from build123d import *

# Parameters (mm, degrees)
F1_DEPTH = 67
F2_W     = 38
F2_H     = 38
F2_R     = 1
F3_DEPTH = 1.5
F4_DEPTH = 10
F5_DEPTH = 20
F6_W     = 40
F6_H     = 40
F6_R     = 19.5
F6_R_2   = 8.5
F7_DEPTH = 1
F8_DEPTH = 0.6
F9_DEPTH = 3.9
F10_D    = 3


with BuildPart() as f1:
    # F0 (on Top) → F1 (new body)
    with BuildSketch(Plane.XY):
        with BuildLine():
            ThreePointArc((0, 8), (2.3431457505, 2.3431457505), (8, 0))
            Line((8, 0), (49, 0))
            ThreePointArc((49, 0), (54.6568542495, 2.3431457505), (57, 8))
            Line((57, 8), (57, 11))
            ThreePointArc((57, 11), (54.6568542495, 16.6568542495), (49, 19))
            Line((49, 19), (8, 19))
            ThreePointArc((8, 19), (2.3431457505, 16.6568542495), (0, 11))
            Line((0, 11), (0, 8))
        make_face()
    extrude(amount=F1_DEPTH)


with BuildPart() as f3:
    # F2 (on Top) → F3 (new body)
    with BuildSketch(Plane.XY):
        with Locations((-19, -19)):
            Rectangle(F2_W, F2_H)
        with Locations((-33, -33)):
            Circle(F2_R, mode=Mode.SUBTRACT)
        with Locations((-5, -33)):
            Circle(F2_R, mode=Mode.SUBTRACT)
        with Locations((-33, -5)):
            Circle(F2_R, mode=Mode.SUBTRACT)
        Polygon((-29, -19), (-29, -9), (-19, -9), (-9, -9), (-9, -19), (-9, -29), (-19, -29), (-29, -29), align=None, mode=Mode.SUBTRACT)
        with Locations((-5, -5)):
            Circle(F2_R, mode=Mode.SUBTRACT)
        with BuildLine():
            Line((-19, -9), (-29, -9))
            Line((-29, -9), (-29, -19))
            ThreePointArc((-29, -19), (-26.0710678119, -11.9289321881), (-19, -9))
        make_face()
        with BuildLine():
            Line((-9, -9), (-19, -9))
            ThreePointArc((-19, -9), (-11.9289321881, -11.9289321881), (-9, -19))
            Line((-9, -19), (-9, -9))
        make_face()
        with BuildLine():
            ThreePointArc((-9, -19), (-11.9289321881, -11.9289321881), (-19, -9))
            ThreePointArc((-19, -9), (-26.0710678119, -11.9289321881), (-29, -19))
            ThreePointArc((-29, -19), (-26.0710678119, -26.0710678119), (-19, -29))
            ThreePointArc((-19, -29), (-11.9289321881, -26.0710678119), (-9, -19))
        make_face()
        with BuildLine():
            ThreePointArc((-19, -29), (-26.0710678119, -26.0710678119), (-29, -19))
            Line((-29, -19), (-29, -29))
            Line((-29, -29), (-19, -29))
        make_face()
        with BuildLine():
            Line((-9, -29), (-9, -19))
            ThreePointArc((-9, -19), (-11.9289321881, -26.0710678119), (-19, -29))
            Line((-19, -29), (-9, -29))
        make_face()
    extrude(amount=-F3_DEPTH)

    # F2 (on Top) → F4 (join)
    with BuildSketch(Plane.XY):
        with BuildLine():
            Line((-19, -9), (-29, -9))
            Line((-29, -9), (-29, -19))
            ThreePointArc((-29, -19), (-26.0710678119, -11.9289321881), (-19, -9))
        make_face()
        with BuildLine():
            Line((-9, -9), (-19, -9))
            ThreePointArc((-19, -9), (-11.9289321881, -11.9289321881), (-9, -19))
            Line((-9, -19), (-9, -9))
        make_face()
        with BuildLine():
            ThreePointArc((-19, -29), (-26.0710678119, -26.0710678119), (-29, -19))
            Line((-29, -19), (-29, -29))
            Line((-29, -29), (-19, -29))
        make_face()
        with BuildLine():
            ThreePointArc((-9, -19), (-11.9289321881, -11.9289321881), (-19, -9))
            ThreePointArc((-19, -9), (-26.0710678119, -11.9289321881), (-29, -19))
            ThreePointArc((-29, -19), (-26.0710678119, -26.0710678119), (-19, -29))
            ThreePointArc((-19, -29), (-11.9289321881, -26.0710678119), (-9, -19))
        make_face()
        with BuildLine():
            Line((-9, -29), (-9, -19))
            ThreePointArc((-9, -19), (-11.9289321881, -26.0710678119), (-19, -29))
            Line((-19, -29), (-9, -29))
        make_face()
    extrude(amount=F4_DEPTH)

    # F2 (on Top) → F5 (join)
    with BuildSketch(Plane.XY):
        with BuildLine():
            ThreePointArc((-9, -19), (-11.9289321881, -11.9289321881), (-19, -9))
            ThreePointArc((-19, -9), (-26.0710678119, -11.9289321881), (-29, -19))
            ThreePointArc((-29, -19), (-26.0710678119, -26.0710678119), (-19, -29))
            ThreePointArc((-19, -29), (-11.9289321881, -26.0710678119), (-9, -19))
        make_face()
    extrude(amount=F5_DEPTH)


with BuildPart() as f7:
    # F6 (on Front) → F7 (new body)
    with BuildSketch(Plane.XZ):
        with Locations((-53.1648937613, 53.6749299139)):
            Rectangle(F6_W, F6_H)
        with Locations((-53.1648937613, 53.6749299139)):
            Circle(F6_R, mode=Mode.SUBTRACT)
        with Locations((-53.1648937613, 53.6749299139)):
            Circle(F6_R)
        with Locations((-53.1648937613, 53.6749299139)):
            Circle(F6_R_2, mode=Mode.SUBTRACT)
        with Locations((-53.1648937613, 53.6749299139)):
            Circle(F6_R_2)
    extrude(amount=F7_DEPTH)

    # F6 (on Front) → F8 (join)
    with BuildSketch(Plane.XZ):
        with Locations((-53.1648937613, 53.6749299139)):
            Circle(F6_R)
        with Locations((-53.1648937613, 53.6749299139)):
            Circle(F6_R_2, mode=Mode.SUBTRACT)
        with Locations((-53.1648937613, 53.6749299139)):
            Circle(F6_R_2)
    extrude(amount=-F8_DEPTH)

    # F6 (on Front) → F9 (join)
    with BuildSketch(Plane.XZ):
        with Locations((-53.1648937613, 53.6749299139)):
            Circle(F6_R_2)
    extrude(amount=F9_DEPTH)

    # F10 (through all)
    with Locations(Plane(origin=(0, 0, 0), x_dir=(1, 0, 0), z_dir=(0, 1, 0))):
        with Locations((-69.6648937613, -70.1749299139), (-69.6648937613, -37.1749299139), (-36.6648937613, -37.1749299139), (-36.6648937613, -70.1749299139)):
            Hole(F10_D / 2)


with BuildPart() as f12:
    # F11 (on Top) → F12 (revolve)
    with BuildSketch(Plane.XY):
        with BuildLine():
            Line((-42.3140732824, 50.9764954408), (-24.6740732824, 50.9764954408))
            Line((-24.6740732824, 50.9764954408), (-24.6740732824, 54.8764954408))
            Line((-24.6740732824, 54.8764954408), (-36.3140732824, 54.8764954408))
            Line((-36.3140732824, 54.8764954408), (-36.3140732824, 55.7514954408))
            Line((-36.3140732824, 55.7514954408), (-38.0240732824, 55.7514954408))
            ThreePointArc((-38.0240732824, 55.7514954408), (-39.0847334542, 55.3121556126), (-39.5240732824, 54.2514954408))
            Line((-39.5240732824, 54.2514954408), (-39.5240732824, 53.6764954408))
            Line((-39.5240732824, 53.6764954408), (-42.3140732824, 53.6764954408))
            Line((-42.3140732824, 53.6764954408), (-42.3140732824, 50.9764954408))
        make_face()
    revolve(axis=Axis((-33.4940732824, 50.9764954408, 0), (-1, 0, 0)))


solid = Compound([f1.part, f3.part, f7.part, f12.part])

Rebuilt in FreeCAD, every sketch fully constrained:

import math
import FreeCAD as App
import Part
import Sketcher

doc = App.newDocument("Part")
body = doc.addObject("PartDesign::Body", "Body")

sketch1 = doc.addObject("Sketcher::SketchObject", "Sketch")
body.addObject(sketch1)
sketch1.AttachmentSupport = (doc.XY_Plane, [""])
sketch1.MapMode = "FlatFace"
sketch1.addGeometry(Part.ArcOfCircle(Part.Circle(App.Vector(8, 8, 0), App.Vector(0, 0, 1), 8), math.radians(180), math.radians(270)), False)
sketch1.addGeometry(Part.LineSegment(App.Vector(8, 0, 0), App.Vector(49, 0, 0)), False)
sketch1.addGeometry(Part.ArcOfCircle(Part.Circle(App.Vector(49, 8, 0), App.Vector(0, 0, 1), 8), math.radians(-90), math.radians(0)), False)
sketch1.addGeometry(Part.LineSegment(App.Vector(57, 8, 0), App.Vector(57, 11, 0)), False)
sketch1.addGeometry(Part.ArcOfCircle(Part.Circle(App.Vector(49, 11, 0), App.Vector(0, 0, 1), 8), math.radians(0), math.radians(90)), False)
sketch1.addGeometry(Part.LineSegment(App.Vector(49, 19, 0), App.Vector(8, 19, 0)), False)
sketch1.addGeometry(Part.ArcOfCircle(Part.Circle(App.Vector(8, 11, 0), App.Vector(0, 0, 1), 8), math.radians(90), math.radians(180)), False)
sketch1.addGeometry(Part.LineSegment(App.Vector(0, 11, 0), App.Vector(0, 8, 0)), False)
sketch1.addConstraint(Sketcher.Constraint("Tangent", 0, 2, 1, 1))
sketch1.addConstraint(Sketcher.Constraint("Tangent", 1, 2, 2, 1))
sketch1.addConstraint(Sketcher.Constraint("Tangent", 2, 2, 3, 1))
sketch1.addConstraint(Sketcher.Constraint("Tangent", 3, 2, 4, 1))
sketch1.addConstraint(Sketcher.Constraint("Tangent", 4, 2, 5, 1))
sketch1.addConstraint(Sketcher.Constraint("Tangent", 5, 2, 6, 1))
sketch1.addConstraint(Sketcher.Constraint("Tangent", 6, 2, 7, 1))
sketch1.addConstraint(Sketcher.Constraint("Tangent", 7, 2, 0, 1))
sketch1.addConstraint(Sketcher.Constraint("Horizontal", 1))
sketch1.addConstraint(Sketcher.Constraint("Vertical", 3))
sketch1.addConstraint(Sketcher.Constraint("Horizontal", 5))
sketch1.addConstraint(Sketcher.Constraint("Vertical", 7))
sketch1.addConstraint(Sketcher.Constraint("Equal", 0, 2))
sketch1.addConstraint(Sketcher.Constraint("Equal", 2, 4))
sketch1.addConstraint(Sketcher.Constraint("Equal", 4, 6))
sketch1.addConstraint(Sketcher.Constraint("PointOnObject", 0, 2, -1))
sketch1.addConstraint(Sketcher.Constraint("PointOnObject", 6, 2, -2))
sketch1.addConstraint(Sketcher.Constraint("Radius", 0, 8.0))
sketch1.addConstraint(Sketcher.Constraint("DistanceX", 1, 1, 1, 2, 41.0))
sketch1.addConstraint(Sketcher.Constraint("DistanceY", 3, 1, 3, 2, 3.0))
pad1 = doc.addObject("PartDesign::Pad", "Pad")
body.addObject(pad1)
pad1.Profile = sketch1
pad1.Length = 67
body2 = doc.addObject("PartDesign::Body", "Body001")

sketch2 = doc.addObject("Sketcher::SketchObject", "Sketch001")
body2.addObject(sketch2)
sketch2.AttachmentSupport = (doc.getObject("XY_Plane001"), [""])
sketch2.MapMode = "FlatFace"
sketch2.addGeometry(Part.LineSegment(App.Vector(-38, 0, 0), App.Vector(-38, -38, 0)), False)
sketch2.addGeometry(Part.LineSegment(App.Vector(-38, -38, 0), App.Vector(0, -38, 0)), False)
sketch2.addGeometry(Part.LineSegment(App.Vector(0, -38, 0), App.Vector(0, 0, 0)), False)
sketch2.addGeometry(Part.LineSegment(App.Vector(0, 0, 0), App.Vector(-38, 0, 0)), False)
sketch2.addGeometry(Part.Circle(App.Vector(-33, -33, 0), App.Vector(0, 0, 1), 1), False)
sketch2.addGeometry(Part.Circle(App.Vector(-5, -33, 0), App.Vector(0, 0, 1), 1), False)
sketch2.addGeometry(Part.Circle(App.Vector(-33, -5, 0), App.Vector(0, 0, 1), 1), False)
sketch2.addGeometry(Part.Circle(App.Vector(-5, -5, 0), App.Vector(0, 0, 1), 1), False)
sketch2.addConstraint(Sketcher.Constraint("Coincident", 0, 2, 1, 1))
sketch2.addConstraint(Sketcher.Constraint("Coincident", 1, 2, 2, 1))
sketch2.addConstraint(Sketcher.Constraint("Coincident", 2, 2, 3, 1))
sketch2.addConstraint(Sketcher.Constraint("Coincident", 3, 2, 0, 1))
sketch2.addConstraint(Sketcher.Constraint("Vertical", 0))
sketch2.addConstraint(Sketcher.Constraint("Horizontal", 1))
sketch2.addConstraint(Sketcher.Constraint("Vertical", 2))
sketch2.addConstraint(Sketcher.Constraint("Horizontal", 3))
sketch2.addConstraint(Sketcher.Constraint("Coincident", 2, 2, -1, 1))
sketch2.addConstraint(Sketcher.Constraint("Equal", 4, 5))
sketch2.addConstraint(Sketcher.Constraint("Equal", 5, 6))
sketch2.addConstraint(Sketcher.Constraint("Equal", 6, 7))
sketch2.addConstraint(Sketcher.Constraint("Horizontal", 4, 3, 5, 3))
sketch2.addConstraint(Sketcher.Constraint("Horizontal", 6, 3, 7, 3))
sketch2.addConstraint(Sketcher.Constraint("Vertical", 4, 3, 6, 3))
sketch2.addConstraint(Sketcher.Constraint("Vertical", 5, 3, 7, 3))
sketch2.addConstraint(Sketcher.Constraint("Equal", 3, 0))
sketch2.addConstraint(Sketcher.Constraint("Diameter", 4, 2.0))
sketch2.addConstraint(Sketcher.Constraint("DistanceX", 1, 1, 1, 2, 38.0))
sketch2.addConstraint(Sketcher.Constraint("DistanceX", 4, 3, -1, 1, 33.0))
sketch2.addConstraint(Sketcher.Constraint("DistanceY", 4, 3, -1, 1, 33.0))
sketch2.addConstraint(Sketcher.Constraint("DistanceX", 5, 3, -1, 1, 5.0))
sketch2.addConstraint(Sketcher.Constraint("DistanceY", 6, 3, -1, 1, 5.0))
pad2 = doc.addObject("PartDesign::Pad", "Pad001")
body2.addObject(pad2)
pad2.Profile = sketch2
pad2.Length = 1.5
pad2.Reversed = True

sketch3 = doc.addObject("Sketcher::SketchObject", "Sketch002")
body2.addObject(sketch3)
sketch3.AttachmentSupport = (doc.getObject("XY_Plane001"), [""])
sketch3.MapMode = "FlatFace"
sketch3.addGeometry(Part.LineSegment(App.Vector(-29, -9, 0), App.Vector(-29, -29, 0)), False)
sketch3.addGeometry(Part.LineSegment(App.Vector(-29, -29, 0), App.Vector(-9, -29, 0)), False)
sketch3.addGeometry(Part.LineSegment(App.Vector(-9, -29, 0), App.Vector(-9, -9, 0)), False)
sketch3.addGeometry(Part.LineSegment(App.Vector(-9, -9, 0), App.Vector(-29, -9, 0)), False)
sketch3.addConstraint(Sketcher.Constraint("Coincident", 0, 2, 1, 1))
sketch3.addConstraint(Sketcher.Constraint("Coincident", 1, 2, 2, 1))
sketch3.addConstraint(Sketcher.Constraint("Coincident", 2, 2, 3, 1))
sketch3.addConstraint(Sketcher.Constraint("Coincident", 3, 2, 0, 1))
sketch3.addConstraint(Sketcher.Constraint("Vertical", 0))
sketch3.addConstraint(Sketcher.Constraint("Horizontal", 1))
sketch3.addConstraint(Sketcher.Constraint("Vertical", 2))
sketch3.addConstraint(Sketcher.Constraint("Horizontal", 3))
sketch3.addConstraint(Sketcher.Constraint("Equal", 3, 0))
sketch3.addConstraint(Sketcher.Constraint("DistanceX", 1, 1, 1, 2, 20.0))
sketch3.addConstraint(Sketcher.Constraint("DistanceX", 0, 2, -1, 1, 29.0))
sketch3.addConstraint(Sketcher.Constraint("DistanceY", 0, 2, -1, 1, 29.0))
pad3 = doc.addObject("PartDesign::Pad", "Pad002")
body2.addObject(pad3)
pad3.Profile = sketch3
pad3.Length = 10

sketch4 = doc.addObject("Sketcher::SketchObject", "Sketch003")
body2.addObject(sketch4)
sketch4.AttachmentSupport = (doc.getObject("XY_Plane001"), [""])
sketch4.MapMode = "FlatFace"
sketch4.addGeometry(Part.ArcOfCircle(Part.Circle(App.Vector(-19, -19, 0), App.Vector(0, 0, 1), 10), math.radians(0), math.radians(90)), False)
sketch4.addGeometry(Part.ArcOfCircle(Part.Circle(App.Vector(-19, -19, 0), App.Vector(0, 0, 1), 10), math.radians(90), math.radians(180)), False)
sketch4.addGeometry(Part.ArcOfCircle(Part.Circle(App.Vector(-19, -19, 0), App.Vector(0, 0, 1), 10), math.radians(180), math.radians(270)), False)
sketch4.addGeometry(Part.ArcOfCircle(Part.Circle(App.Vector(-19, -19, 0), App.Vector(0, 0, 1), 10), math.radians(-90), math.radians(0)), False)
sketch4.addConstraint(Sketcher.Constraint("Tangent", 0, 2, 1, 1))
sketch4.addConstraint(Sketcher.Constraint("Tangent", 1, 2, 2, 1))
sketch4.addConstraint(Sketcher.Constraint("Tangent", 2, 2, 3, 1))
sketch4.addConstraint(Sketcher.Constraint("Tangent", 3, 2, 0, 1))
sketch4.addConstraint(Sketcher.Constraint("Equal", 0, 1))
sketch4.addConstraint(Sketcher.Constraint("Horizontal", 3, 3, 1, 2))
sketch4.addConstraint(Sketcher.Constraint("Horizontal", 1, 2, 3, 2))
sketch4.addConstraint(Sketcher.Constraint("Vertical", 3, 3, 0, 2))
sketch4.addConstraint(Sketcher.Constraint("Vertical", 0, 2, 2, 2))
sketch4.addConstraint(Sketcher.Constraint("Radius", 0, 10.0))
sketch4.addConstraint(Sketcher.Constraint("DistanceX", 0, 3, -1, 1, 19.0))
sketch4.addConstraint(Sketcher.Constraint("DistanceY", 0, 3, -1, 1, 19.0))
pad4 = doc.addObject("PartDesign::Pad", "Pad003")
body2.addObject(pad4)
pad4.Profile = sketch4
pad4.Length = 20
body3 = doc.addObject("PartDesign::Body", "Body002")

sketch5 = doc.addObject("Sketcher::SketchObject", "Sketch004")
body3.addObject(sketch5)
sketch5.AttachmentSupport = (doc.getObject("XZ_Plane002"), [""])
sketch5.MapMode = "FlatFace"
sketch5.addGeometry(Part.LineSegment(App.Vector(-73.164894, 73.67493, 0), App.Vector(-73.164894, 33.67493, 0)), False)
sketch5.addGeometry(Part.LineSegment(App.Vector(-73.164894, 33.67493, 0), App.Vector(-33.164894, 33.67493, 0)), False)
sketch5.addGeometry(Part.LineSegment(App.Vector(-33.164894, 33.67493, 0), App.Vector(-33.164894, 73.67493, 0)), False)
sketch5.addGeometry(Part.LineSegment(App.Vector(-33.164894, 73.67493, 0), App.Vector(-73.164894, 73.67493, 0)), False)
sketch5.addConstraint(Sketcher.Constraint("Coincident", 0, 2, 1, 1))
sketch5.addConstraint(Sketcher.Constraint("Coincident", 1, 2, 2, 1))
sketch5.addConstraint(Sketcher.Constraint("Coincident", 2, 2, 3, 1))
sketch5.addConstraint(Sketcher.Constraint("Coincident", 3, 2, 0, 1))
sketch5.addConstraint(Sketcher.Constraint("Vertical", 0))
sketch5.addConstraint(Sketcher.Constraint("Horizontal", 1))
sketch5.addConstraint(Sketcher.Constraint("Vertical", 2))
sketch5.addConstraint(Sketcher.Constraint("Horizontal", 3))
sketch5.addConstraint(Sketcher.Constraint("Equal", 3, 0))
sketch5.addConstraint(Sketcher.Constraint("DistanceX", 1, 1, 1, 2, 40.0))
sketch5.addConstraint(Sketcher.Constraint("DistanceY", -1, 1, 0, 2, 33.67493))
sketch5.addConstraint(Sketcher.Constraint("DistanceX", 0, 2, -1, 1, 73.164894))
pad5 = doc.addObject("PartDesign::Pad", "Pad004")
body3.addObject(pad5)
pad5.Profile = sketch5
pad5.Length = 1

sketch6 = doc.addObject("Sketcher::SketchObject", "Sketch005")
body3.addObject(sketch6)
sketch6.AttachmentSupport = (doc.getObject("XZ_Plane002"), [""])
sketch6.MapMode = "FlatFace"
sketch6.addGeometry(Part.Circle(App.Vector(-53.164894, 53.67493, 0), App.Vector(0, 0, 1), 19.5), False)
sketch6.addConstraint(Sketcher.Constraint("Diameter", 0, 39.0))
sketch6.addConstraint(Sketcher.Constraint("DistanceY", -1, 1, 0, 3, 53.67493))
sketch6.addConstraint(Sketcher.Constraint("DistanceX", 0, 3, -1, 1, 53.164894))
pad6 = doc.addObject("PartDesign::Pad", "Pad005")
body3.addObject(pad6)
pad6.Profile = sketch6
pad6.Length = 0.6
pad6.Reversed = True

sketch7 = doc.addObject("Sketcher::SketchObject", "Sketch006")
body3.addObject(sketch7)
sketch7.AttachmentSupport = (doc.getObject("XZ_Plane002"), [""])
sketch7.MapMode = "FlatFace"
sketch7.addGeometry(Part.Circle(App.Vector(-53.164894, 53.67493, 0), App.Vector(0, 0, 1), 8.5), False)
sketch7.addConstraint(Sketcher.Constraint("Diameter", 0, 17.0))
sketch7.addConstraint(Sketcher.Constraint("DistanceY", -1, 1, 0, 3, 53.67493))
sketch7.addConstraint(Sketcher.Constraint("DistanceX", 0, 3, -1, 1, 53.164894))
pad7 = doc.addObject("PartDesign::Pad", "Pad006")
body3.addObject(pad7)
pad7.Profile = sketch7
pad7.Length = 3.9

sketch8 = doc.addObject("Sketcher::SketchObject", "Sketch007")
body3.addObject(sketch8)
sketch8.AttachmentSupport = (doc.getObject("XZ_Plane002"), [""])
sketch8.MapMode = "FlatFace"
sketch8.addGeometry(Part.Circle(App.Vector(-69.664894, 70.17493, 0), App.Vector(0, 0, 1), 1.5), False)
sketch8.addGeometry(Part.Circle(App.Vector(-69.664894, 37.17493, 0), App.Vector(0, 0, 1), 1.5), False)
sketch8.addGeometry(Part.Circle(App.Vector(-36.664894, 37.17493, 0), App.Vector(0, 0, 1), 1.5), False)
sketch8.addGeometry(Part.Circle(App.Vector(-36.664894, 70.17493, 0), App.Vector(0, 0, 1), 1.5), False)
sketch8.addConstraint(Sketcher.Constraint("Equal", 0, 1))
sketch8.addConstraint(Sketcher.Constraint("Equal", 1, 2))
sketch8.addConstraint(Sketcher.Constraint("Equal", 2, 3))
sketch8.addConstraint(Sketcher.Constraint("Horizontal", 1, 3, 2, 3))
sketch8.addConstraint(Sketcher.Constraint("Horizontal", 0, 3, 3, 3))
sketch8.addConstraint(Sketcher.Constraint("Vertical", 0, 3, 1, 3))
sketch8.addConstraint(Sketcher.Constraint("Vertical", 2, 3, 3, 3))
sketch8.addConstraint(Sketcher.Constraint("Diameter", 0, 3.0))
sketch8.addConstraint(Sketcher.Constraint("DistanceY", 1, 3, 0, 3, 33.0))
sketch8.addConstraint(Sketcher.Constraint("DistanceX", 1, 3, 2, 3, 33.0))
sketch8.addConstraint(Sketcher.Constraint("DistanceY", -1, 1, 0, 3, 70.17493))
sketch8.addConstraint(Sketcher.Constraint("DistanceX", 0, 3, -1, 1, 69.664894))
doc.recompute()
hole = doc.addObject("PartDesign::Hole", "Hole")
body3.addObject(hole)
hole.Profile = sketch8
hole.ThreadType = "None"
hole.Diameter = 3
hole.DepthType = "ThroughAll"
hole.Reversed = True
body4 = doc.addObject("PartDesign::Body", "Body003")

sketch9 = doc.addObject("Sketcher::SketchObject", "Sketch008")
body4.addObject(sketch9)
sketch9.AttachmentSupport = (doc.getObject("XY_Plane003"), [""])
sketch9.MapMode = "FlatFace"
sketch9.addGeometry(Part.LineSegment(App.Vector(-42.314073, 50.976495, 0), App.Vector(-24.674073, 50.976495, 0)), False)
sketch9.addGeometry(Part.LineSegment(App.Vector(-24.674073, 50.976495, 0), App.Vector(-24.674073, 54.876495, 0)), False)
sketch9.addGeometry(Part.LineSegment(App.Vector(-24.674073, 54.876495, 0), App.Vector(-36.314073, 54.876495, 0)), False)
sketch9.addGeometry(Part.LineSegment(App.Vector(-36.314073, 54.876495, 0), App.Vector(-36.314073, 55.751495, 0)), False)
sketch9.addGeometry(Part.LineSegment(App.Vector(-36.314073, 55.751495, 0), App.Vector(-38.024073, 55.751495, 0)), False)
sketch9.addGeometry(Part.ArcOfCircle(Part.Circle(App.Vector(-38.024073, 54.251495, 0), App.Vector(0, 0, 1), 1.5), math.radians(90), math.radians(180)), False)
sketch9.addGeometry(Part.LineSegment(App.Vector(-39.524073, 54.251495, 0), App.Vector(-39.524073, 53.676495, 0)), False)
sketch9.addGeometry(Part.LineSegment(App.Vector(-39.524073, 53.676495, 0), App.Vector(-42.314073, 53.676495, 0)), False)
sketch9.addGeometry(Part.LineSegment(App.Vector(-42.314073, 53.676495, 0), App.Vector(-42.314073, 50.976495, 0)), False)
sketch9.addGeometry(Part.LineSegment(App.Vector(-24.674073, 50.976495, 0), App.Vector(-42.314073, 50.976495, 0)), True)
sketch9.addConstraint(Sketcher.Constraint("Coincident", 0, 2, 1, 1))
sketch9.addConstraint(Sketcher.Constraint("Coincident", 1, 2, 2, 1))
sketch9.addConstraint(Sketcher.Constraint("Coincident", 2, 2, 3, 1))
sketch9.addConstraint(Sketcher.Constraint("Coincident", 3, 2, 4, 1))
sketch9.addConstraint(Sketcher.Constraint("Tangent", 4, 2, 5, 1))
sketch9.addConstraint(Sketcher.Constraint("Tangent", 5, 2, 6, 1))
sketch9.addConstraint(Sketcher.Constraint("Coincident", 6, 2, 7, 1))
sketch9.addConstraint(Sketcher.Constraint("Coincident", 7, 2, 8, 1))
sketch9.addConstraint(Sketcher.Constraint("Coincident", 8, 2, 0, 1))
sketch9.addConstraint(Sketcher.Constraint("Horizontal", 0))
sketch9.addConstraint(Sketcher.Constraint("Vertical", 1))
sketch9.addConstraint(Sketcher.Constraint("Horizontal", 2))
sketch9.addConstraint(Sketcher.Constraint("Vertical", 3))
sketch9.addConstraint(Sketcher.Constraint("Horizontal", 4))
sketch9.addConstraint(Sketcher.Constraint("Vertical", 6))
sketch9.addConstraint(Sketcher.Constraint("Horizontal", 7))
sketch9.addConstraint(Sketcher.Constraint("Vertical", 8))
sketch9.addConstraint(Sketcher.Constraint("Horizontal", 9))
sketch9.addConstraint(Sketcher.Constraint("Coincident", 9, 1, 0, 2))
sketch9.addConstraint(Sketcher.Constraint("Vertical", 7, 2, 9, 2))
sketch9.addConstraint(Sketcher.Constraint("Radius", 5, 1.5))
sketch9.addConstraint(Sketcher.Constraint("DistanceY", 1, 1, 1, 2, 3.9))
sketch9.addConstraint(Sketcher.Constraint("DistanceY", 8, 2, 8, 1, 2.7))
sketch9.addConstraint(Sketcher.Constraint("DistanceX", 7, 2, 2, 2, 6.0))
sketch9.addConstraint(Sketcher.Constraint("DistanceX", 0, 1, 0, 2, 17.64))
sketch9.addConstraint(Sketcher.Constraint("DistanceX", 4, 2, 4, 1, 1.71))
sketch9.addConstraint(Sketcher.Constraint("DistanceY", 3, 1, 3, 2, 0.875))
sketch9.addConstraint(Sketcher.Constraint("DistanceX", 5, 3, -1, 1, 38.024073))
sketch9.addConstraint(Sketcher.Constraint("DistanceY", -1, 1, 5, 3, 54.251495))
revolution = doc.addObject("PartDesign::Revolution", "Revolution")
body4.addObject(revolution)
revolution.Profile = sketch9
revolution.ReferenceAxis = (sketch9, ["Axis0"])
revolution.Angle = 360

doc.recompute()
